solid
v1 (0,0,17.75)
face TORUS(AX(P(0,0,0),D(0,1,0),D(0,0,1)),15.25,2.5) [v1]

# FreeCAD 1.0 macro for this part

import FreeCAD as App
import Part
import Sketcher

doc = App.newDocument("Part")
params = doc.addObject("Spreadsheet::Sheet", "Params")
for row, (alias, value) in enumerate([
    ("sketch1_diameter", "5 mm"),
    ("revolution_angle", "360 deg"),
], start=1):
    params.set(f"A{row}", alias)
    params.set(f"B{row}", "=" + value)
    params.setAlias(f"B{row}", alias)

body = doc.addObject("PartDesign::Body", "Body")

sketch1 = doc.addObject("Sketcher::SketchObject", "Sketch")
body.addObject(sketch1)
sketch1.AttachmentSupport = (doc.XY_Plane, [""])
sketch1.MapMode = "FlatFace"
sketch1.addGeometry(Part.Circle(App.Vector(15.25, 0, 0), App.Vector(0, 0, 1), 2.5), False)
sketch1.addConstraint(Sketcher.Constraint("PointOnObject", 0, 3, -1))
sketch1.addConstraint(Sketcher.Constraint("Diameter", 0, 5.0))
sketch1.addConstraint(Sketcher.Constraint("DistanceX", -1, 1, 0, 3, 15.25))
sketch1.setExpression("Constraints[1]", "Params.sketch1_diameter")
revolution = doc.addObject("PartDesign::Revolution", "Revolution")
body.addObject(revolution)
revolution.Profile = sketch1
revolution.ReferenceAxis = (sketch1, ["V_Axis"])
revolution.setExpression("Angle", "Params.revolution_angle")

doc.recompute()
